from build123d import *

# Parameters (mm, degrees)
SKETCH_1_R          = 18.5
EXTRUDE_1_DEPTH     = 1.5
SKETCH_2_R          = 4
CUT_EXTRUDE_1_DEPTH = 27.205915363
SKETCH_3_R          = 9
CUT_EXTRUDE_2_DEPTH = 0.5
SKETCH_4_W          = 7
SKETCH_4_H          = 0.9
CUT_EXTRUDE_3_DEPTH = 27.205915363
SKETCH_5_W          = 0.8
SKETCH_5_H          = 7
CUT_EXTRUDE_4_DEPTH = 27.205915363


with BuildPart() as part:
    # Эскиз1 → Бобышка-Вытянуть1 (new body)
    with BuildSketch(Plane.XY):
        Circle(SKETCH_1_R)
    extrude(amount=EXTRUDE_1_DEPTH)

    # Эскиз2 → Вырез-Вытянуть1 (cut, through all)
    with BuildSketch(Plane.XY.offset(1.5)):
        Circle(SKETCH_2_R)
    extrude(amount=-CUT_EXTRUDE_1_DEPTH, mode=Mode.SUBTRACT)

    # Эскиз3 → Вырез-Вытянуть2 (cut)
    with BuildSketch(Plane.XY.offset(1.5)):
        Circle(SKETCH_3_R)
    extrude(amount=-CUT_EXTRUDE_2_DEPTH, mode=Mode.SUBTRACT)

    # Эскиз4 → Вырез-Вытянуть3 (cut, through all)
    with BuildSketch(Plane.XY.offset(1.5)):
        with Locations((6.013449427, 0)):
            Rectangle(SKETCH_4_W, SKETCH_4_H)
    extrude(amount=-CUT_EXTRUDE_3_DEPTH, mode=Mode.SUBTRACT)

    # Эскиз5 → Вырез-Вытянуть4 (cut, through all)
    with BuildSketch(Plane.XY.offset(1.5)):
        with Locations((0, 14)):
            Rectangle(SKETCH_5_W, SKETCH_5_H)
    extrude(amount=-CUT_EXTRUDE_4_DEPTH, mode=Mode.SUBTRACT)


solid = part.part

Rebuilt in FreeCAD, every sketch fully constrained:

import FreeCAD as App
import Part
import Sketcher

V = App.Vector
Q = App.Units.Quantity


def add_polygon(sketch, points):
    """Adds a closed chain of lines whose ends are joined by coincident constraints."""
    first, n = sketch.GeometryCount, len(points)
    for a, b in zip(points, points[1:] + points[:1]):
        sketch.addGeometry(Part.LineSegment(App.Vector(*a, 0), App.Vector(*b, 0)), False)
    for i in range(n):
        sketch.addConstraint(Sketcher.Constraint("Coincident", first + i, 2, first + (i + 1) % n, 1))

doc = App.newDocument("Part")
params = doc.addObject("Spreadsheet::Sheet", "Params")
for row, (alias, value) in enumerate([
    ("sketch1_diameter", "37 mm"),
    ("pad1_length", "1.5 mm"),
    ("sketch2_diameter", "8 mm"),
    ("sketch3_diameter", "18 mm"),
    ("pocket2_length", "0.5 mm"),
    ("sketch4_width", "7 mm"),
    ("sketch4_height", "0.9 mm"),
    ("sketch5_height", "7 mm"),
    ("sketch5_width", "0.8 mm"),
], start=1):
    params.set(f"A{row}", alias)
    params.set(f"B{row}", "=" + value)
    params.setAlias(f"B{row}", alias)

body = doc.addObject("PartDesign::Body", "Body")

# Sketch on XY plane
sketch1 = doc.addObject("Sketcher::SketchObject", "Sketch")
body.addObject(sketch1)
sketch1.AttachmentSupport = (doc.XY_Plane, [""])
sketch1.MapMode = "FlatFace"
sketch1.addGeometry(Part.Circle(V(0, 0, 0), V(0, 0, 1), 18), False)
sketch1.addConstraint([
    Sketcher.Constraint("Coincident", 0, 3, -1, 1),
    Sketcher.Constraint("Diameter", 0, Q("37 mm")),
])
sketch1.setExpression("Constraints[1]", "Params.sketch1_diameter")
pad1 = doc.addObject("PartDesign::Pad", "Pad")
body.addObject(pad1)
pad1.Profile = sketch1
pad1.setExpression("Length", "Params.pad1_length")

# Sketch on XY plane
sketch2 = doc.addObject("Sketcher::SketchObject", "Sketch001")
body.addObject(sketch2)
sketch2.AttachmentSupport = (doc.XY_Plane, [""])
sketch2.MapMode = "FlatFace"
sketch2.AttachmentOffset = App.Placement(V(0, 0, 1.5), App.Rotation())
sketch2.addGeometry(Part.Circle(V(0, 0, 0), V(0, 0, 1), 4), False)
sketch2.addConstraint([
    Sketcher.Constraint("Coincident", 0, 3, -1, 1),
    Sketcher.Constraint("Diameter", 0, Q("8 mm")),
])
sketch2.setExpression("Constraints[1]", "Params.sketch2_diameter")
pocket1 = doc.addObject("PartDesign::Pocket", "Pocket")
body.addObject(pocket1)
pocket1.Profile = sketch2
pocket1.Type = "ThroughAll"

# Sketch on XY plane
sketch3 = doc.addObject("Sketcher::SketchObject", "Sketch002")
body.addObject(sketch3)
sketch3.AttachmentSupport = (doc.XY_Plane, [""])
sketch3.MapMode = "FlatFace"
sketch3.AttachmentOffset = App.Placement(V(0, 0, 1.5), App.Rotation())
sketch3.addGeometry(Part.Circle(V(0, 0, 0), V(0, 0, 1), 9), False)
sketch3.addConstraint([
    Sketcher.Constraint("Coincident", 0, 3, -1, 1),
    Sketcher.Constraint("Diameter", 0, Q("18 mm")),
])
sketch3.setExpression("Constraints[1]", "Params.sketch3_diameter")
pocket2 = doc.addObject("PartDesign::Pocket", "Pocket001")
body.addObject(pocket2)
pocket2.Profile = sketch3
pocket2.setExpression("Length", "Params.pocket2_length")

# Sketch on XY plane
sketch4 = doc.addObject("Sketcher::SketchObject", "Sketch003")
body.addObject(sketch4)
sketch4.AttachmentSupport = (doc.XY_Plane, [""])
sketch4.MapMode = "FlatFace"
sketch4.AttachmentOffset = App.Placement(V(0, 0, 1.5), App.Rotation())
add_polygon(sketch4, [(2.5, 0.5), (2.5, -0.5), (9.5, -0.5), (9.5, 0.5)])  # lines 0-3
sketch4.addConstraint([
    Sketcher.Constraint("Vertical", 0),
    Sketcher.Constraint("Horizontal", 1),
    Sketcher.Constraint("Vertical", 2),
    Sketcher.Constraint("Horizontal", 3),
    Sketcher.Constraint("DistanceX", 1, 1, 1, 2, Q("7 mm")),
    Sketcher.Constraint("DistanceY", 0, 2, 0, 1, Q("0.9 mm")),
    Sketcher.Constraint("DistanceY", 0, 2, -1, 1, Q("0.45 mm")),
    Sketcher.Constraint("DistanceX", -1, 1, 0, 2, Q("2.513449 mm")),
])
sketch4.setExpression("Constraints[8]", "Params.sketch4_width")
sketch4.setExpression("Constraints[9]", "Params.sketch4_height")
pocket3 = doc.addObject("PartDesign::Pocket", "Pocket002")
body.addObject(pocket3)
pocket3.Profile = sketch4
pocket3.Type = "ThroughAll"

# Sketch on XY plane
sketch5 = doc.addObject("Sketcher::SketchObject", "Sketch004")
body.addObject(sketch5)
sketch5.AttachmentSupport = (doc.XY_Plane, [""])
sketch5.MapMode = "FlatFace"
sketch5.AttachmentOffset = App.Placement(V(0, 0, 1.5), App.Rotation())
add_polygon(sketch5, [(-0.4, 17.5), (-0.4, 10.5), (0.4, 10.5), (0.4, 17.5)])  # lines 0-3
sketch5.addConstraint([
    Sketcher.Constraint("Vertical", 0),
    Sketcher.Constraint("Horizontal", 1),
    Sketcher.Constraint("Vertical", 2),
    Sketcher.Constraint("Horizontal", 3),
    Sketcher.Constraint("DistanceY", 0, 2, 0, 1, Q("7 mm")),
    Sketcher.Constraint("DistanceX", 1, 1, 1, 2, Q("0.8 mm")),
    Sketcher.Constraint("DistanceX", 0, 2, -1, 1, Q("0.4 mm")),
    Sketcher.Constraint("DistanceY", -1, 1, 0, 2, Q("10.5 mm")),
])
sketch5.setExpression("Constraints[8]", "Params.sketch5_height")
sketch5.setExpression("Constraints[9]", "Params.sketch5_width")
pocket4 = doc.addObject("PartDesign::Pocket", "Pocket003")
body.addObject(pocket4)
pocket4.Profile = sketch5
pocket4.Type = "ThroughAll"

doc.recompute()
